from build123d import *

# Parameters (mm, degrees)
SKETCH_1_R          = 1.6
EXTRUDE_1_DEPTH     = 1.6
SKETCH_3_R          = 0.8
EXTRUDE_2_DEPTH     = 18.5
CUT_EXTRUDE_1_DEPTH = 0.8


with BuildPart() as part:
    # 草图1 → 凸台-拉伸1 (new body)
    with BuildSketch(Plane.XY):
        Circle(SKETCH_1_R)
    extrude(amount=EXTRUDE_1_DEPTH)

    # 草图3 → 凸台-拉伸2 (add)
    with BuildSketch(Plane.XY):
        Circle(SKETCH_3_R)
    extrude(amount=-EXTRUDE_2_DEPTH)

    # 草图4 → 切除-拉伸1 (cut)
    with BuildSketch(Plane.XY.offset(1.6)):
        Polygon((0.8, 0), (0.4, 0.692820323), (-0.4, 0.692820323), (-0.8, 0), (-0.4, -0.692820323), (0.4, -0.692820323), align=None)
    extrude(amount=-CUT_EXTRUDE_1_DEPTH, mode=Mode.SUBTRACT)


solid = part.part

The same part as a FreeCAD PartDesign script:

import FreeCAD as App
import Part
import Sketcher

V = App.Vector
Q = App.Units.Quantity

doc = App.newDocument("Part")
body = doc.addObject("PartDesign::Body", "Body")

sketch1 = body.newObject("Sketcher::SketchObject", "Sketch")
sketch1.AttachmentSupport = (doc.getObject("XY_Plane"), [""])
sketch1.MapMode = "FlatFace"
sketch1.addGeometry(Part.Circle(V(0, 0, 0), V(0, 0, 1), 1.6), False)
sketch1.addConstraint([
    Sketcher.Constraint("Coincident", 0, 3, -1, 1),
    Sketcher.Constraint("Diameter", 0, Q("3.2 mm")),
])
pad1 = body.newObject("PartDesign::Pad", "Pad")
pad1.Profile = sketch1
pad1.Length = 1.6

sketch2 = body.newObject("Sketcher::SketchObject", "Sketch001")
sketch2.AttachmentSupport = (doc.getObject("XY_Plane"), [""])
sketch2.MapMode = "FlatFace"
sketch2.addGeometry(Part.Circle(V(0, 0, 0), V(0, 0, 1), 0.8), False)
sketch2.addConstraint([
    Sketcher.Constraint("Coincident", 0, 3, -1, 1),
    Sketcher.Constraint("Diameter", 0, Q("1.6 mm")),
])
pad2 = body.newObject("PartDesign::Pad", "Pad001")
pad2.Profile = sketch2
pad2.Length = 18.5
pad2.Reversed = True

sketch3 = body.newObject("Sketcher::SketchObject", "Sketch002")
sketch3.AttachmentSupport = (doc.getObject("XY_Plane"), [""])
sketch3.MapMode = "FlatFace"
sketch3.AttachmentOffset = App.Placement(V(0, 0, 1.6), App.Rotation())
sketch3.addGeometry([
    Part.LineSegment(V(0.8, 0, 0), V(0.4, 0.69282, 0)),
    Part.LineSegment(V(0.4, 0.69282, 0), V(-0.4, 0.69282, 0)),
    Part.LineSegment(V(-0.4, 0.69282, 0), V(-0.8, 0, 0)),
    Part.LineSegment(V(-0.8, 0, 0), V(-0.4, -0.69282, 0)),
    Part.LineSegment(V(-0.4, -0.69282, 0), V(0.4, -0.69282, 0)),
    Part.LineSegment(V(0.4, -0.69282, 0), V(0.8, 0, 0)),
], False)
sketch3.addConstraint([
    Sketcher.Constraint("Coincident", 0, 2, 1, 1),
    Sketcher.Constraint("Coincident", 1, 2, 2, 1),
    Sketcher.Constraint("Coincident", 2, 2, 3, 1),
    Sketcher.Constraint("Coincident", 3, 2, 4, 1),
    Sketcher.Constraint("Coincident", 4, 2, 5, 1),
    Sketcher.Constraint("Coincident", 5, 2, 0, 1),
    Sketcher.Constraint("Horizontal", 1),
    Sketcher.Constraint("Horizontal", 4),
    Sketcher.Constraint("Symmetric", 0, 2, 3, 2, -1, 1),
    Sketcher.Constraint("Symmetric", 2, 2, 5, 2, -1, 1),
    Sketcher.Constraint("PointOnObject", 2, 2, -1),
    Sketcher.Constraint("Parallel", 2, 5),
    Sketcher.Constraint("Vertical", 1, 2, 3, 2),
    Sketcher.Constraint("Angle", 0, Q("120 deg")),
    Sketcher.Constraint("DistanceX", 1, 2, 1, 1, Q("0.8 mm")),
    Sketcher.Constraint("Distance", 0, Q("0.8 mm")),
])
pocket1 = body.newObject("PartDesign::Pocket", "Pocket")
pocket1.Profile = sketch3
pocket1.Length = 0.8

doc.recompute()
